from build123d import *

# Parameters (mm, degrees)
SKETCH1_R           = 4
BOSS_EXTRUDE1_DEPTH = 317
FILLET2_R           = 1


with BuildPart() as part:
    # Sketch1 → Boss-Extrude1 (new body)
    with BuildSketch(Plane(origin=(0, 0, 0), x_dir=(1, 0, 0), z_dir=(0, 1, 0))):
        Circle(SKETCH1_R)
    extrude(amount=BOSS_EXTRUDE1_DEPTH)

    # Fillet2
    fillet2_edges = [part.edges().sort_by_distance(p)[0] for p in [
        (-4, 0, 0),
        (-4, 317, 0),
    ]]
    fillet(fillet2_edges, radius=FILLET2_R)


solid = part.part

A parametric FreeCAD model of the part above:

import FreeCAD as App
import Part
import Sketcher

V = App.Vector
Q = App.Units.Quantity


def edges_at(feature, points):
    """Names of the edges that pass closest to the given points."""
    edges = feature.Shape.Edges
    near = lambda p: min(range(len(edges)), key=lambda i: edges[i].distToShape(Part.Vertex(*p))[0])
    return sorted({f"Edge{near(p) + 1}" for p in points})

doc = App.newDocument("Part")
params = doc.addObject("Spreadsheet::Sheet", "Params")
for row, (alias, value) in enumerate([
    ("sketch1_diameter", "8 mm"),
    ("pad1_length", "317 mm"),
    ("fillet_radius", "1 mm"),
], start=1):
    params.set(f"A{row}", alias)
    params.set(f"B{row}", "=" + value)
    params.setAlias(f"B{row}", alias)

body = doc.addObject("PartDesign::Body", "Body")

sketch1 = body.newObject("Sketcher::SketchObject", "Sketch")
sketch1.AttachmentSupport = (doc.getObject("XZ_Plane"), [""])
sketch1.MapMode = "FlatFace"
sketch1.addGeometry(Part.Circle(V(0, 0, 0), V(0, 0, 1), 4), False)
sketch1.addConstraint(Sketcher.Constraint("Coincident", 0, 3, -1, 1))
sketch1.addConstraint(Sketcher.Constraint("Diameter", 0, Q("8 mm")))
sketch1.setExpression("Constraints[1]", "Params.sketch1_diameter")
pad1 = body.newObject("PartDesign::Pad", "Pad")
pad1.Profile = sketch1
pad1.setExpression("Length", "Params.pad1_length")
pad1.Reversed = True
doc.recompute()

fillet = body.newObject("PartDesign::Fillet", "Fillet")
fillet.Base = (pad1, edges_at(pad1, [(-4, 0, 0), (-4, 317, 0)]))
fillet.setExpression("Radius", "Params.fillet_radius")

doc.recompute()
